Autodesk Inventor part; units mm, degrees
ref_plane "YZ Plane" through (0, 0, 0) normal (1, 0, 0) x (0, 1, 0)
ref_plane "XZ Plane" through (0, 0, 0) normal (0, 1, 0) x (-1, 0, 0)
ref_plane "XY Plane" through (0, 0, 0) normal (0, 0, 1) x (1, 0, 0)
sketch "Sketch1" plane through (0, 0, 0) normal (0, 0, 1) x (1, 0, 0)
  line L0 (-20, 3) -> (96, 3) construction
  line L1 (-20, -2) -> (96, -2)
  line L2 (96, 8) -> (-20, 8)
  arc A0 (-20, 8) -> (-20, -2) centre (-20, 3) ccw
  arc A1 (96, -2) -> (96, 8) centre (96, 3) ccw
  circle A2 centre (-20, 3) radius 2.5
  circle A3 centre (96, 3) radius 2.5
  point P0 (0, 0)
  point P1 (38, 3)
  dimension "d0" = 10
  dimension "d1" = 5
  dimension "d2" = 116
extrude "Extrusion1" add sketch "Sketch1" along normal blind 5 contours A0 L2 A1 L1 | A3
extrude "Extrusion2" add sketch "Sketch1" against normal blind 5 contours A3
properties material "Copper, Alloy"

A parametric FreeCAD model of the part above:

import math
import FreeCAD as App
import Part
import Sketcher
Q = App.Units.Quantity

doc = App.newDocument("Part")
body = doc.addObject("PartDesign::Body", "Body")

sketch1 = body.newObject("Sketcher::SketchObject", "Sketch")
sketch1.AttachmentSupport = (doc.getObject("XY_Plane"), [""])
sketch1.MapMode = "FlatFace"
sketch1.addGeometry([
    Part.ArcOfCircle(Part.Circle(App.Vector(-20, 3, 0), App.Vector(0, 0, 1), 5), math.radians(90), math.radians(270)),
    Part.LineSegment(App.Vector(-20, -2, 0), App.Vector(96, -2, 0)),
    Part.ArcOfCircle(Part.Circle(App.Vector(96, 3, 0), App.Vector(0, 0, 1), 5), math.radians(-90), math.radians(90)),
    Part.LineSegment(App.Vector(96, 8, 0), App.Vector(-20, 8, 0)),
    Part.Circle(App.Vector(-20, 3, 0), App.Vector(0, 0, 1), 2.5),
], False)
sketch1.addConstraint([
    Sketcher.Constraint("Tangent", 0, 2, 1, 1),
    Sketcher.Constraint("Tangent", 1, 2, 2, 1),
    Sketcher.Constraint("Tangent", 2, 2, 3, 1),
    Sketcher.Constraint("Tangent", 3, 2, 0, 1),
    Sketcher.Constraint("Horizontal", 1),
    Sketcher.Constraint("Horizontal", 3),
    Sketcher.Constraint("Coincident", 4, 3, 0, 3),
    Sketcher.Constraint("Diameter", 4, Q("5 mm")),
    Sketcher.Constraint("Radius", 0, Q("5 mm")),
    Sketcher.Constraint("DistanceX", 1, 1, 1, 2, Q("116 mm")),
    Sketcher.Constraint("DistanceX", 0, 3, -1, 1, Q("20 mm")),
    Sketcher.Constraint("DistanceY", -1, 1, 0, 3, Q("3 mm")),
])
pad1 = body.newObject("PartDesign::Pad", "Pad")
pad1.Profile = sketch1
pad1.Length = 5

sketch2 = body.newObject("Sketcher::SketchObject", "Sketch001")
sketch2.AttachmentSupport = (doc.getObject("XY_Plane"), [""])
sketch2.MapMode = "FlatFace"
sketch2.addGeometry(Part.Circle(App.Vector(96, 3, 0), App.Vector(0, 0, 1), 2.5), False)
sketch2.addConstraint([
    Sketcher.Constraint("Diameter", 0, Q("5 mm")),
    Sketcher.Constraint("DistanceX", -1, 1, 0, 3, Q("96 mm")),
    Sketcher.Constraint("DistanceY", -1, 1, 0, 3, Q("3 mm")),
])
pad2 = body.newObject("PartDesign::Pad", "Pad001")
pad2.Profile = sketch2
pad2.Length = 5
pad2.Reversed = True

doc.recompute()
